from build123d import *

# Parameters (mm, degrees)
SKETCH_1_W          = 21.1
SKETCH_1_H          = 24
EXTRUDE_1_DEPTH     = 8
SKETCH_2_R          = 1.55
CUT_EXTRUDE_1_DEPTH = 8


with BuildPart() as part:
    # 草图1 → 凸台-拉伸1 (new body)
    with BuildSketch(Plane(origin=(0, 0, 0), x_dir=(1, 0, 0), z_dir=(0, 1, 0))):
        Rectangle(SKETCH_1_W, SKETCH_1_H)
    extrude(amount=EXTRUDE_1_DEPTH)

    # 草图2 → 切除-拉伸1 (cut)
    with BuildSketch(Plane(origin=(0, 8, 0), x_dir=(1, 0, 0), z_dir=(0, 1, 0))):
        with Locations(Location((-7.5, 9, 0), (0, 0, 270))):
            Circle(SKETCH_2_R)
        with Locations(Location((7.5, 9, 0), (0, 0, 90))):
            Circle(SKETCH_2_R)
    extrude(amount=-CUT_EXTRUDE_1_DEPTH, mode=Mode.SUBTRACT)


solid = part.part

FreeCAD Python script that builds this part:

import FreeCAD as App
import Part
import Sketcher

V = App.Vector
Q = App.Units.Quantity

doc = App.newDocument("Part")
body = doc.addObject("PartDesign::Body", "Body")

# Sketch on XZ plane
sketch1 = body.newObject("Sketcher::SketchObject", "Sketch")
sketch1.AttachmentSupport = (doc.getObject("XZ_Plane"), [""])
sketch1.MapMode = "FlatFace"
sketch1.addGeometry([
    Part.LineSegment(V(-11, -12, 0), V(-11, 12, 0)),
    Part.LineSegment(V(-11, 12, 0), V(11, 12, 0)),
    Part.LineSegment(V(11, 12, 0), V(11, -12, 0)),
    Part.LineSegment(V(11, -12, 0), V(-11, -12, 0)),
], False)
sketch1.addConstraint([
    Sketcher.Constraint("Coincident", 0, 2, 1, 1),
    Sketcher.Constraint("Coincident", 1, 2, 2, 1),
    Sketcher.Constraint("Coincident", 2, 2, 3, 1),
    Sketcher.Constraint("Coincident", 3, 2, 0, 1),
    Sketcher.Constraint("Vertical", 0),
    Sketcher.Constraint("Horizontal", 1),
    Sketcher.Constraint("Vertical", 2),
    Sketcher.Constraint("Horizontal", 3),
    Sketcher.Constraint("Symmetric", 0, 2, 2, 2, -1, 1),
    Sketcher.Constraint("DistanceY", 0, 1, 0, 2, Q("24 mm")),
    Sketcher.Constraint("DistanceX", 1, 1, 1, 2, Q("21.1 mm")),
])
pad1 = body.newObject("PartDesign::Pad", "Pad")
pad1.Profile = sketch1
pad1.Length = 8
pad1.Reversed = True

# Sketch on XZ plane
sketch2 = body.newObject("Sketcher::SketchObject", "Sketch001")
sketch2.AttachmentSupport = (doc.getObject("XZ_Plane"), [""])
sketch2.MapMode = "FlatFace"
sketch2.AttachmentOffset = App.Placement(V(0, 0, -8), App.Rotation())
sketch2.addGeometry([
    Part.Circle(V(-7.5, -9, 0), V(0, 0, 1), 1.6),
    Part.Circle(V(7.5, -9, 0), V(0, 0, 1), 1.6),
], False)
sketch2.addConstraint([
    Sketcher.Constraint("Equal", 0, 1),
    Sketcher.Constraint("Symmetric", 0, 3, 1, 3, -2),
    Sketcher.Constraint("Diameter", 0, Q("3.1 mm")),
    Sketcher.Constraint("DistanceY", 0, 3, -1, 1, Q("9 mm")),
    Sketcher.Constraint("DistanceX", 0, 3, 1, 3, Q("15 mm")),
])
pocket1 = body.newObject("PartDesign::Pocket", "Pocket")
pocket1.Profile = sketch2
pocket1.Length = 8
pocket1.Reversed = True

doc.recompute()
